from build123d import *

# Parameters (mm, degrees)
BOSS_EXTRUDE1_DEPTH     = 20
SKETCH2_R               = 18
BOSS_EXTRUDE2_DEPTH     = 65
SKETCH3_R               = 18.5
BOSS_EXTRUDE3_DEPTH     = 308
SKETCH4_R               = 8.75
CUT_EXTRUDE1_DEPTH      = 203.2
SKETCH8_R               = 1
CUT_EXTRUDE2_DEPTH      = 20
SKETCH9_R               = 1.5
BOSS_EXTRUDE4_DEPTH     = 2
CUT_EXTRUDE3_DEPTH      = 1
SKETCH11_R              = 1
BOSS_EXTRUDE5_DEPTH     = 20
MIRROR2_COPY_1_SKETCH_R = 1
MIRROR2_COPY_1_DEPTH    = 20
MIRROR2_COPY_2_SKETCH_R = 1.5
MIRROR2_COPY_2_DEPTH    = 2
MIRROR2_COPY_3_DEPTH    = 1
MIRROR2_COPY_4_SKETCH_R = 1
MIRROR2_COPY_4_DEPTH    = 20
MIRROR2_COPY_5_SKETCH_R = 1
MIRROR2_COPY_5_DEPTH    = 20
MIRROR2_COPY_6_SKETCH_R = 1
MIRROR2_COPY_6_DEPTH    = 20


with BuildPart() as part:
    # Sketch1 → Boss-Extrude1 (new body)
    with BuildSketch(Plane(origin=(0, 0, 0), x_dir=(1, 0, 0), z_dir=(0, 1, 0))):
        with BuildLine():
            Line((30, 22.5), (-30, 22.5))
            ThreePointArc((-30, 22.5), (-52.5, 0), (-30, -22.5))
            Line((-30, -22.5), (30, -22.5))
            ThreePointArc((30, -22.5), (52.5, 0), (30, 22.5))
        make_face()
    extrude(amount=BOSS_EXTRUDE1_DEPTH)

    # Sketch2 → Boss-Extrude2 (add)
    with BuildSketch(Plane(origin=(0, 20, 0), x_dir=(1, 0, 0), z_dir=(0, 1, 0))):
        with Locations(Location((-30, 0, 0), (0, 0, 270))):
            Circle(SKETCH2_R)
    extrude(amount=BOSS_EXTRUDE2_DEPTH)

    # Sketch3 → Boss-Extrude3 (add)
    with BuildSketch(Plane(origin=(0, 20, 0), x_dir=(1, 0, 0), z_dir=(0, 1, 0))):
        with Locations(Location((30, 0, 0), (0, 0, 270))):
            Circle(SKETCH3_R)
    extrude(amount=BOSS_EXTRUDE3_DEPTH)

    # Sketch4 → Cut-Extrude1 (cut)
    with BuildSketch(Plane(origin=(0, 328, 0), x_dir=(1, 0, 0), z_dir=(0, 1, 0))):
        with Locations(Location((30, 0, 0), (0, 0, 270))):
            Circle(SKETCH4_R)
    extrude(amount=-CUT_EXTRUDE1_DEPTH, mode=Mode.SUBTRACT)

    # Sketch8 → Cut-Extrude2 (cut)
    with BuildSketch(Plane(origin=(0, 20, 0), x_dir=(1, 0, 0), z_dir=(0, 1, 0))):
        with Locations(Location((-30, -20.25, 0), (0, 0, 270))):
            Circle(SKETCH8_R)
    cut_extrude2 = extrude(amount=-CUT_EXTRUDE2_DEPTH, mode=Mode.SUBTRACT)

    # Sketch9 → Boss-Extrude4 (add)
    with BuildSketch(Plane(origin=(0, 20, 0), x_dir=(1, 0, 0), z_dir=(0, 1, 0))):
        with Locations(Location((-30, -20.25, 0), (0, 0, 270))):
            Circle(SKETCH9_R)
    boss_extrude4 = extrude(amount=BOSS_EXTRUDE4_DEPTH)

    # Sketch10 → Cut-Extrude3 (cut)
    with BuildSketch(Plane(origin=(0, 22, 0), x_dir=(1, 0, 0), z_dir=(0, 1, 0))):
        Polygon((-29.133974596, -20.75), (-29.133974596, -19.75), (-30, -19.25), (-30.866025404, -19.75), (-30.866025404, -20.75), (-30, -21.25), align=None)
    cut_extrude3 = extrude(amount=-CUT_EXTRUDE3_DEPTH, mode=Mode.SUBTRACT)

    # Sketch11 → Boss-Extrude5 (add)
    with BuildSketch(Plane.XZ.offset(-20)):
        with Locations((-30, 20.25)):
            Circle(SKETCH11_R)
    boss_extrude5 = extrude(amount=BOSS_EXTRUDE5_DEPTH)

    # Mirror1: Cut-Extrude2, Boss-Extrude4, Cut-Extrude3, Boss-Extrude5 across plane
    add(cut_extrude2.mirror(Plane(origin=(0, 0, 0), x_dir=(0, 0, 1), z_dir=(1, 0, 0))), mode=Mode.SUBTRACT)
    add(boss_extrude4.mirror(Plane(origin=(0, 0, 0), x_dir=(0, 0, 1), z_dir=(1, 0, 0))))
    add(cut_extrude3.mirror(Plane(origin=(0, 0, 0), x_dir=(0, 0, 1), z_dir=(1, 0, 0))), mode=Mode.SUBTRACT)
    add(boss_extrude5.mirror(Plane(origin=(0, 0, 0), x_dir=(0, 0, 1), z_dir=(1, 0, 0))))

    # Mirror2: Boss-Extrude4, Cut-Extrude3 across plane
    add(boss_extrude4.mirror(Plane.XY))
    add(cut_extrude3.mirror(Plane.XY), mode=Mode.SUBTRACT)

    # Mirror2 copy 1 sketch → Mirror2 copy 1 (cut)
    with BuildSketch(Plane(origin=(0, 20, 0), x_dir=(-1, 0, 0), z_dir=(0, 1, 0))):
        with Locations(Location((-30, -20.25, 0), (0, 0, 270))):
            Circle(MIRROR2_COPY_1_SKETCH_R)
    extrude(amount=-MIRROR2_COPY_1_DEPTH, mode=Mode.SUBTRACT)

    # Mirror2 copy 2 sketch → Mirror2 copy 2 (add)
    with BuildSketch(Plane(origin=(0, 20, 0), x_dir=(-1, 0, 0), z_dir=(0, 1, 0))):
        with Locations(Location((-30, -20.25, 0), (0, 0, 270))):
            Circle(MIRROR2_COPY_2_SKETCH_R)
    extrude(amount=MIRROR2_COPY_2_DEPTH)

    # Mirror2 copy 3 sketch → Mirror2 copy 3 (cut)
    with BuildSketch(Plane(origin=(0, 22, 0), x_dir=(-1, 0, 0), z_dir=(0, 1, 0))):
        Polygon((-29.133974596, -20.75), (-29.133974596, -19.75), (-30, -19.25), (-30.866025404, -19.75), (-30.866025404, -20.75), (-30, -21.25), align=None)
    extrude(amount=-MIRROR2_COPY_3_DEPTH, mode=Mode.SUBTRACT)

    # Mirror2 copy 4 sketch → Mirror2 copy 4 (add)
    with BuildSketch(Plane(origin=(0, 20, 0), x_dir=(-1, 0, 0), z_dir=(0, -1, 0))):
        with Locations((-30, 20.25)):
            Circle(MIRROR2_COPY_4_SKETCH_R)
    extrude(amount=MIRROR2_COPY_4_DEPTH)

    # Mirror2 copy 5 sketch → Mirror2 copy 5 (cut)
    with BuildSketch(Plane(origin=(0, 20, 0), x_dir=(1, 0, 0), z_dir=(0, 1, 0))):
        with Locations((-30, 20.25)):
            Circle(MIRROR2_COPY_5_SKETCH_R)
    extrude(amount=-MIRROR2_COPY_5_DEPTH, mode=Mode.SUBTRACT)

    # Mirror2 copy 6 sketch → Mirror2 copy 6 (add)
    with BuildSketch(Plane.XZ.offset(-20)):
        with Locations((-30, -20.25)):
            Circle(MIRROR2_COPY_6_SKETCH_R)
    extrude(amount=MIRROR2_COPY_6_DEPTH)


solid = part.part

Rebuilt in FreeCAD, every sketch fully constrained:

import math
import FreeCAD as App
import Part
import Sketcher
from FreeCAD import Vector
Q = App.Units.Quantity


def add_polygon(sketch, points):
    """Adds a closed chain of lines whose ends are joined by coincident constraints."""
    first, n = sketch.GeometryCount, len(points)
    for a, b in zip(points, points[1:] + points[:1]):
        sketch.addGeometry(Part.LineSegment(App.Vector(*a, 0), App.Vector(*b, 0)), False)
    for i in range(n):
        sketch.addConstraint(Sketcher.Constraint("Coincident", first + i, 2, first + (i + 1) % n, 1))

doc = App.newDocument("Part")
params = doc.addObject("Spreadsheet::Sheet", "Params")
for row, (alias, value) in enumerate([
    ("sketch1_radius", "22.5 mm"),
    ("sketch1_width", "60 mm"),
    ("pad1_length", "20 mm"),
    ("sketch2_diameter", "36 mm"),
    ("pad2_length", "65 mm"),
    ("sketch3_diameter", "37 mm"),
    ("pad3_length", "308 mm"),
    ("sketch4_diameter", "17.5 mm"),
    ("pocket1_length", "203.2 mm"),
    ("sketch5_diameter", "2 mm"),
    ("pocket2_length", "20 mm"),
    ("sketch6_diameter", "3 mm"),
    ("pad4_length", "2 mm"),
    ("sketch7_height", "1 mm"),
    ("sketch7_length", "1 mm"),
    ("pocket3_length", "1 mm"),
    ("sketch8_diameter", "2 mm"),
    ("pad5_length", "20 mm"),
    ("sketch9_diameter", "2 mm"),
    ("pocket4_length", "20 mm"),
    ("sketch10_diameter", "3 mm"),
    ("pad6_length", "2 mm"),
    ("sketch11_height", "1 mm"),
    ("sketch11_length", "1 mm"),
    ("pocket5_length", "1 mm"),
    ("sketch12_diameter", "2 mm"),
    ("pad7_length", "20 mm"),
    ("sketch13_diameter", "2 mm"),
    ("pocket6_length", "20 mm"),
    ("sketch14_diameter", "2 mm"),
    ("pad8_length", "20 mm"),
], start=1):
    params.set(f"A{row}", alias)
    params.set(f"B{row}", "=" + value)
    params.setAlias(f"B{row}", alias)

body = doc.addObject("PartDesign::Body", "Body")

# Sketch on XZ plane
sketch1 = body.newObject("Sketcher::SketchObject", "Sketch")
sketch1.AttachmentSupport = (doc.getObject("XZ_Plane"), [""])
sketch1.MapMode = "FlatFace"
sketch1.addGeometry(Part.LineSegment(Vector(30, -22, 0), Vector(-30, -22, 0)), False)
sketch1.addGeometry(Part.ArcOfCircle(Part.Circle(Vector(-30, 0, 0), Vector(0, 0, 1), 22), math.radians(90), math.radians(270)), False)
sketch1.addGeometry(Part.LineSegment(Vector(-30, 22, 0), Vector(30, 22, 0)), False)
sketch1.addGeometry(Part.ArcOfCircle(Part.Circle(Vector(30, 0, 0), Vector(0, 0, 1), 22), math.radians(-90), math.radians(90)), False)
sketch1.addConstraint(Sketcher.Constraint("Tangent", 0, 2, 1, 2))
sketch1.addConstraint(Sketcher.Constraint("Tangent", 1, 1, 2, 1))
sketch1.addConstraint(Sketcher.Constraint("Tangent", 2, 2, 3, 2))
sketch1.addConstraint(Sketcher.Constraint("Tangent", 3, 1, 0, 1))
sketch1.addConstraint(Sketcher.Constraint("Horizontal", 0))
sketch1.addConstraint(Sketcher.Constraint("Horizontal", 2))
sketch1.addConstraint(Sketcher.Constraint("Symmetric", 1, 3, 3, 3, -1, 1))
sketch1.addConstraint(Sketcher.Constraint("Radius", 1, 22.5))
sketch1.addConstraint(Sketcher.Constraint("DistanceX", 0, 2, 0, 1, 60.0))
sketch1.setExpression("Constraints[7]", "Params.sketch1_radius")
sketch1.setExpression("Constraints[8]", "Params.sketch1_width")
pad1 = body.newObject("PartDesign::Pad", "Pad")
pad1.Profile = sketch1
pad1.setExpression("Length", "Params.pad1_length")
pad1.Reversed = True

# Sketch on XZ plane
sketch2 = body.newObject("Sketcher::SketchObject", "Sketch001")
sketch2.AttachmentSupport = (doc.getObject("XZ_Plane"), [""])
sketch2.MapMode = "FlatFace"
sketch2.AttachmentOffset = App.Placement(Vector(0, 0, -20), App.Rotation())
sketch2.addGeometry(Part.Circle(Vector(-30, 0, 0), Vector(0, 0, 1), 18), False)
sketch2.addConstraint(Sketcher.Constraint("PointOnObject", 0, 3, -1))
sketch2.addConstraint(Sketcher.Constraint("Diameter", 0, 36.0))
sketch2.addConstraint(Sketcher.Constraint("DistanceX", 0, 3, -1, 1, 30.0))
sketch2.setExpression("Constraints[1]", "Params.sketch2_diameter")
pad2 = body.newObject("PartDesign::Pad", "Pad001")
pad2.Profile = sketch2
pad2.setExpression("Length", "Params.pad2_length")
pad2.Reversed = True

# Sketch on XZ plane
sketch3 = body.newObject("Sketcher::SketchObject", "Sketch002")
sketch3.AttachmentSupport = (doc.getObject("XZ_Plane"), [""])
sketch3.MapMode = "FlatFace"
sketch3.AttachmentOffset = App.Placement(Vector(0, 0, -20), App.Rotation())
sketch3.addGeometry(Part.Circle(Vector(30, 0, 0), Vector(0, 0, 1), 18), False)
sketch3.addConstraint(Sketcher.Constraint("PointOnObject", 0, 3, -1))
sketch3.addConstraint(Sketcher.Constraint("Diameter", 0, 37.0))
sketch3.addConstraint(Sketcher.Constraint("DistanceX", -1, 1, 0, 3, 30.0))
sketch3.setExpression("Constraints[1]", "Params.sketch3_diameter")
pad3 = body.newObject("PartDesign::Pad", "Pad002")
pad3.Profile = sketch3
pad3.setExpression("Length", "Params.pad3_length")
pad3.Reversed = True

# Sketch on XZ plane
sketch4 = body.newObject("Sketcher::SketchObject", "Sketch003")
sketch4.AttachmentSupport = (doc.getObject("XZ_Plane"), [""])
sketch4.MapMode = "FlatFace"
sketch4.AttachmentOffset = App.Placement(Vector(0, 0, -328), App.Rotation())
sketch4.addGeometry(Part.Circle(Vector(30, 0, 0), Vector(0, 0, 1), 9), False)
sketch4.addConstraint(Sketcher.Constraint("PointOnObject", 0, 3, -1))
sketch4.addConstraint(Sketcher.Constraint("Diameter", 0, 17.5))
sketch4.addConstraint(Sketcher.Constraint("DistanceX", -1, 1, 0, 3, 30.0))
sketch4.setExpression("Constraints[1]", "Params.sketch4_diameter")
pocket1 = body.newObject("PartDesign::Pocket", "Pocket")
pocket1.Profile = sketch4
pocket1.setExpression("Length", "Params.pocket1_length")
pocket1.Reversed = True

# Sketch on XZ plane
sketch5 = body.newObject("Sketcher::SketchObject", "Sketch004")
sketch5.AttachmentSupport = (doc.getObject("XZ_Plane"), [""])
sketch5.MapMode = "FlatFace"
sketch5.AttachmentOffset = App.Placement(Vector(0, 0, -20), App.Rotation())
sketch5.addGeometry(Part.Circle(Vector(-30, 20.2, 0), Vector(0, 0, 1), 1), False)
sketch5.addConstraint(Sketcher.Constraint("Diameter", 0, 2.0))
sketch5.addConstraint(Sketcher.Constraint("DistanceX", 0, 3, -1, 1, 30.0))
sketch5.addConstraint(Sketcher.Constraint("DistanceY", -1, 1, 0, 3, 20.25))
sketch5.setExpression("Constraints[0]", "Params.sketch5_diameter")
pocket2 = body.newObject("PartDesign::Pocket", "Pocket001")
pocket2.Profile = sketch5
pocket2.setExpression("Length", "Params.pocket2_length")
pocket2.Reversed = True

# Sketch on XZ plane
sketch6 = body.newObject("Sketcher::SketchObject", "Sketch005")
sketch6.AttachmentSupport = (doc.getObject("XZ_Plane"), [""])
sketch6.MapMode = "FlatFace"
sketch6.AttachmentOffset = App.Placement(Vector(0, 0, -20), App.Rotation())
sketch6.addGeometry(Part.Circle(Vector(-30, 20.2, 0), Vector(0, 0, 1), 1.5), False)
sketch6.addConstraint(Sketcher.Constraint("Diameter", 0, 3.0))
sketch6.addConstraint(Sketcher.Constraint("DistanceX", 0, 3, -1, 1, 30.0))
sketch6.addConstraint(Sketcher.Constraint("DistanceY", -1, 1, 0, 3, 20.25))
sketch6.setExpression("Constraints[0]", "Params.sketch6_diameter")
pad4 = body.newObject("PartDesign::Pad", "Pad003")
pad4.Profile = sketch6
pad4.setExpression("Length", "Params.pad4_length")
pad4.Reversed = True

# Sketch on XZ plane
sketch7 = body.newObject("Sketcher::SketchObject", "Sketch006")
sketch7.AttachmentSupport = (doc.getObject("XZ_Plane"), [""])
sketch7.MapMode = "FlatFace"
sketch7.AttachmentOffset = App.Placement(Vector(0, 0, -22), App.Rotation())
add_polygon(sketch7, [(-29.1, 20.8), (-29.1, 19.8), (-30, 19.2), (-30.9, 19.8), (-30.9, 20.8), (-30, 21.2)])  # lines 0-5
sketch7.addConstraint(Sketcher.Constraint("Vertical", 0))
sketch7.addConstraint(Sketcher.Constraint("Vertical", 3))
sketch7.addConstraint(Sketcher.Constraint("Parallel", 1, 4))
sketch7.addConstraint(Sketcher.Constraint("Parallel", 2, 5))
sketch7.addConstraint(Sketcher.Constraint("Horizontal", 0, 2, 2, 2))
sketch7.addConstraint(Sketcher.Constraint("Horizontal", 3, 2, 5, 2))
sketch7.addConstraint(Sketcher.Constraint("Vertical", 1, 2, 4, 2))
sketch7.addConstraint(Sketcher.Constraint("DistanceY", 0, 2, 0, 1, 1.0))
sketch7.addConstraint(Sketcher.Constraint("Angle", 1, Q("-150 deg")))
sketch7.addConstraint(Sketcher.Constraint("Distance", 1, 1.0))
sketch7.addConstraint(Sketcher.Constraint("DistanceX", 1, 2, -1, 1, 30.0))
sketch7.addConstraint(Sketcher.Constraint("DistanceY", -1, 1, 0, 2, 19.75))
sketch7.setExpression("Constraints[13]", "Params.sketch7_height")
sketch7.setExpression("Constraints[15]", "Params.sketch7_length")
pocket3 = body.newObject("PartDesign::Pocket", "Pocket002")
pocket3.Profile = sketch7
pocket3.setExpression("Length", "Params.pocket3_length")
pocket3.Reversed = True

# Sketch on XZ plane
sketch8 = body.newObject("Sketcher::SketchObject", "Sketch007")
sketch8.AttachmentSupport = (doc.getObject("XZ_Plane"), [""])
sketch8.MapMode = "FlatFace"
sketch8.AttachmentOffset = App.Placement(Vector(0, 0, -20), App.Rotation())
sketch8.addGeometry(Part.Circle(Vector(-30, 20.2, 0), Vector(0, 0, 1), 1), False)
sketch8.addConstraint(Sketcher.Constraint("Diameter", 0, 2.0))
sketch8.addConstraint(Sketcher.Constraint("DistanceX", 0, 3, -1, 1, 30.0))
sketch8.addConstraint(Sketcher.Constraint("DistanceY", -1, 1, 0, 3, 20.25))
sketch8.setExpression("Constraints[0]", "Params.sketch8_diameter")
pad5 = body.newObject("PartDesign::Pad", "Pad004")
pad5.Profile = sketch8
pad5.setExpression("Length", "Params.pad5_length")
doc.recompute()

mirrored = body.newObject("PartDesign::Mirrored", "Mirrored")
mirrored.Originals = [pocket2, pad4, pocket3, pad5]
mirrored.MirrorPlane = (doc.getObject("YZ_Plane"), [""])
body.Tip = mirrored
doc.recompute()

mirrored2 = body.newObject("PartDesign::Mirrored", "Mirrored001")
mirrored2.Originals = [pad4, pocket3]
mirrored2.MirrorPlane = (doc.getObject("XY_Plane"), [""])
body.Tip = mirrored2

# Sketch on XZ plane
sketch9 = body.newObject("Sketcher::SketchObject", "Sketch008")
sketch9.AttachmentSupport = (doc.getObject("XZ_Plane"), [""])
sketch9.MapMode = "FlatFace"
sketch9.AttachmentOffset = App.Placement(Vector(0, 0, -20), App.Rotation())
sketch9.addGeometry(Part.Circle(Vector(30, -20.2, 0), Vector(0, 0, 1), 1), False)
sketch9.addConstraint(Sketcher.Constraint("Diameter", 0, 2.0))
sketch9.addConstraint(Sketcher.Constraint("DistanceX", -1, 1, 0, 3, 30.0))
sketch9.addConstraint(Sketcher.Constraint("DistanceY", 0, 3, -1, 1, 20.25))
sketch9.setExpression("Constraints[0]", "Params.sketch9_diameter")
pocket4 = body.newObject("PartDesign::Pocket", "Pocket003")
pocket4.Profile = sketch9
pocket4.setExpression("Length", "Params.pocket4_length")
pocket4.Reversed = True

# Sketch on XZ plane
sketch10 = body.newObject("Sketcher::SketchObject", "Sketch009")
sketch10.AttachmentSupport = (doc.getObject("XZ_Plane"), [""])
sketch10.MapMode = "FlatFace"
sketch10.AttachmentOffset = App.Placement(Vector(0, 0, -20), App.Rotation())
sketch10.addGeometry(Part.Circle(Vector(30, -20.2, 0), Vector(0, 0, 1), 1.5), False)
sketch10.addConstraint(Sketcher.Constraint("Diameter", 0, 3.0))
sketch10.addConstraint(Sketcher.Constraint("DistanceX", -1, 1, 0, 3, 30.0))
sketch10.addConstraint(Sketcher.Constraint("DistanceY", 0, 3, -1, 1, 20.25))
sketch10.setExpression("Constraints[0]", "Params.sketch10_diameter")
pad6 = body.newObject("PartDesign::Pad", "Pad005")
pad6.Profile = sketch10
pad6.setExpression("Length", "Params.pad6_length")
pad6.Reversed = True

# Sketch on XZ plane
sketch11 = body.newObject("Sketcher::SketchObject", "Sketch010")
sketch11.AttachmentSupport = (doc.getObject("XZ_Plane"), [""])
sketch11.MapMode = "FlatFace"
sketch11.AttachmentOffset = App.Placement(Vector(0, 0, -22), App.Rotation())
add_polygon(sketch11, [(29.1, -20.8), (29.1, -19.8), (30, -19.2), (30.9, -19.8), (30.9, -20.8), (30, -21.2)])  # lines 0-5
sketch11.addConstraint(Sketcher.Constraint("Vertical", 0))
sketch11.addConstraint(Sketcher.Constraint("Vertical", 3))
sketch11.addConstraint(Sketcher.Constraint("Parallel", 1, 4))
sketch11.addConstraint(Sketcher.Constraint("Parallel", 2, 5))
sketch11.addConstraint(Sketcher.Constraint("Horizontal", 0, 2, 2, 2))
sketch11.addConstraint(Sketcher.Constraint("Horizontal", 3, 2, 5, 2))
sketch11.addConstraint(Sketcher.Constraint("Vertical", 1, 2, 4, 2))
sketch11.addConstraint(Sketcher.Constraint("DistanceY", 0, 1, 0, 2, 1.0))
sketch11.addConstraint(Sketcher.Constraint("Angle", 1, Q("30 deg")))
sketch11.addConstraint(Sketcher.Constraint("Distance", 1, 1.0))
sketch11.addConstraint(Sketcher.Constraint("DistanceX", -1, 1, 1, 2, 30.0))
sketch11.addConstraint(Sketcher.Constraint("DistanceY", 0, 2, -1, 1, 19.75))
sketch11.setExpression("Constraints[13]", "Params.sketch11_height")
sketch11.setExpression("Constraints[15]", "Params.sketch11_length")
pocket5 = body.newObject("PartDesign::Pocket", "Pocket004")
pocket5.Profile = sketch11
pocket5.setExpression("Length", "Params.pocket5_length")
pocket5.Reversed = True

# Sketch on XZ plane
sketch12 = body.newObject("Sketcher::SketchObject", "Sketch011")
sketch12.AttachmentSupport = (doc.getObject("XZ_Plane"), [""])
sketch12.MapMode = "FlatFace"
sketch12.AttachmentOffset = App.Placement(Vector(0, 0, -20), App.Rotation())
sketch12.addGeometry(Part.Circle(Vector(30, -20.2, 0), Vector(0, 0, 1), 1), False)
sketch12.addConstraint(Sketcher.Constraint("Diameter", 0, 2.0))
sketch12.addConstraint(Sketcher.Constraint("DistanceX", -1, 1, 0, 3, 30.0))
sketch12.addConstraint(Sketcher.Constraint("DistanceY", 0, 3, -1, 1, 20.25))
sketch12.setExpression("Constraints[0]", "Params.sketch12_diameter")
pad7 = body.newObject("PartDesign::Pad", "Pad006")
pad7.Profile = sketch12
pad7.setExpression("Length", "Params.pad7_length")

# Sketch on XZ plane
sketch13 = body.newObject("Sketcher::SketchObject", "Sketch012")
sketch13.AttachmentSupport = (doc.getObject("XZ_Plane"), [""])
sketch13.MapMode = "FlatFace"
sketch13.AttachmentOffset = App.Placement(Vector(0, 0, -20), App.Rotation())
sketch13.addGeometry(Part.Circle(Vector(-30, -20.2, 0), Vector(0, 0, 1), 1), False)
sketch13.addConstraint(Sketcher.Constraint("Diameter", 0, 2.0))
sketch13.addConstraint(Sketcher.Constraint("DistanceX", 0, 3, -1, 1, 30.0))
sketch13.addConstraint(Sketcher.Constraint("DistanceY", 0, 3, -1, 1, 20.25))
sketch13.setExpression("Constraints[0]", "Params.sketch13_diameter")
pocket6 = body.newObject("PartDesign::Pocket", "Pocket005")
pocket6.Profile = sketch13
pocket6.setExpression("Length", "Params.pocket6_length")
pocket6.Reversed = True

# Sketch on XZ plane
sketch14 = body.newObject("Sketcher::SketchObject", "Sketch013")
sketch14.AttachmentSupport = (doc.getObject("XZ_Plane"), [""])
sketch14.MapMode = "FlatFace"
sketch14.AttachmentOffset = App.Placement(Vector(0, 0, -20), App.Rotation())
sketch14.addGeometry(Part.Circle(Vector(-30, -20.2, 0), Vector(0, 0, 1), 1), False)
sketch14.addConstraint(Sketcher.Constraint("Diameter", 0, 2.0))
sketch14.addConstraint(Sketcher.Constraint("DistanceX", 0, 3, -1, 1, 30.0))
sketch14.addConstraint(Sketcher.Constraint("DistanceY", 0, 3, -1, 1, 20.25))
sketch14.setExpression("Constraints[0]", "Params.sketch14_diameter")
pad8 = body.newObject("PartDesign::Pad", "Pad007")
pad8.Profile = sketch14
pad8.setExpression("Length", "Params.pad8_length")

doc.recompute()
